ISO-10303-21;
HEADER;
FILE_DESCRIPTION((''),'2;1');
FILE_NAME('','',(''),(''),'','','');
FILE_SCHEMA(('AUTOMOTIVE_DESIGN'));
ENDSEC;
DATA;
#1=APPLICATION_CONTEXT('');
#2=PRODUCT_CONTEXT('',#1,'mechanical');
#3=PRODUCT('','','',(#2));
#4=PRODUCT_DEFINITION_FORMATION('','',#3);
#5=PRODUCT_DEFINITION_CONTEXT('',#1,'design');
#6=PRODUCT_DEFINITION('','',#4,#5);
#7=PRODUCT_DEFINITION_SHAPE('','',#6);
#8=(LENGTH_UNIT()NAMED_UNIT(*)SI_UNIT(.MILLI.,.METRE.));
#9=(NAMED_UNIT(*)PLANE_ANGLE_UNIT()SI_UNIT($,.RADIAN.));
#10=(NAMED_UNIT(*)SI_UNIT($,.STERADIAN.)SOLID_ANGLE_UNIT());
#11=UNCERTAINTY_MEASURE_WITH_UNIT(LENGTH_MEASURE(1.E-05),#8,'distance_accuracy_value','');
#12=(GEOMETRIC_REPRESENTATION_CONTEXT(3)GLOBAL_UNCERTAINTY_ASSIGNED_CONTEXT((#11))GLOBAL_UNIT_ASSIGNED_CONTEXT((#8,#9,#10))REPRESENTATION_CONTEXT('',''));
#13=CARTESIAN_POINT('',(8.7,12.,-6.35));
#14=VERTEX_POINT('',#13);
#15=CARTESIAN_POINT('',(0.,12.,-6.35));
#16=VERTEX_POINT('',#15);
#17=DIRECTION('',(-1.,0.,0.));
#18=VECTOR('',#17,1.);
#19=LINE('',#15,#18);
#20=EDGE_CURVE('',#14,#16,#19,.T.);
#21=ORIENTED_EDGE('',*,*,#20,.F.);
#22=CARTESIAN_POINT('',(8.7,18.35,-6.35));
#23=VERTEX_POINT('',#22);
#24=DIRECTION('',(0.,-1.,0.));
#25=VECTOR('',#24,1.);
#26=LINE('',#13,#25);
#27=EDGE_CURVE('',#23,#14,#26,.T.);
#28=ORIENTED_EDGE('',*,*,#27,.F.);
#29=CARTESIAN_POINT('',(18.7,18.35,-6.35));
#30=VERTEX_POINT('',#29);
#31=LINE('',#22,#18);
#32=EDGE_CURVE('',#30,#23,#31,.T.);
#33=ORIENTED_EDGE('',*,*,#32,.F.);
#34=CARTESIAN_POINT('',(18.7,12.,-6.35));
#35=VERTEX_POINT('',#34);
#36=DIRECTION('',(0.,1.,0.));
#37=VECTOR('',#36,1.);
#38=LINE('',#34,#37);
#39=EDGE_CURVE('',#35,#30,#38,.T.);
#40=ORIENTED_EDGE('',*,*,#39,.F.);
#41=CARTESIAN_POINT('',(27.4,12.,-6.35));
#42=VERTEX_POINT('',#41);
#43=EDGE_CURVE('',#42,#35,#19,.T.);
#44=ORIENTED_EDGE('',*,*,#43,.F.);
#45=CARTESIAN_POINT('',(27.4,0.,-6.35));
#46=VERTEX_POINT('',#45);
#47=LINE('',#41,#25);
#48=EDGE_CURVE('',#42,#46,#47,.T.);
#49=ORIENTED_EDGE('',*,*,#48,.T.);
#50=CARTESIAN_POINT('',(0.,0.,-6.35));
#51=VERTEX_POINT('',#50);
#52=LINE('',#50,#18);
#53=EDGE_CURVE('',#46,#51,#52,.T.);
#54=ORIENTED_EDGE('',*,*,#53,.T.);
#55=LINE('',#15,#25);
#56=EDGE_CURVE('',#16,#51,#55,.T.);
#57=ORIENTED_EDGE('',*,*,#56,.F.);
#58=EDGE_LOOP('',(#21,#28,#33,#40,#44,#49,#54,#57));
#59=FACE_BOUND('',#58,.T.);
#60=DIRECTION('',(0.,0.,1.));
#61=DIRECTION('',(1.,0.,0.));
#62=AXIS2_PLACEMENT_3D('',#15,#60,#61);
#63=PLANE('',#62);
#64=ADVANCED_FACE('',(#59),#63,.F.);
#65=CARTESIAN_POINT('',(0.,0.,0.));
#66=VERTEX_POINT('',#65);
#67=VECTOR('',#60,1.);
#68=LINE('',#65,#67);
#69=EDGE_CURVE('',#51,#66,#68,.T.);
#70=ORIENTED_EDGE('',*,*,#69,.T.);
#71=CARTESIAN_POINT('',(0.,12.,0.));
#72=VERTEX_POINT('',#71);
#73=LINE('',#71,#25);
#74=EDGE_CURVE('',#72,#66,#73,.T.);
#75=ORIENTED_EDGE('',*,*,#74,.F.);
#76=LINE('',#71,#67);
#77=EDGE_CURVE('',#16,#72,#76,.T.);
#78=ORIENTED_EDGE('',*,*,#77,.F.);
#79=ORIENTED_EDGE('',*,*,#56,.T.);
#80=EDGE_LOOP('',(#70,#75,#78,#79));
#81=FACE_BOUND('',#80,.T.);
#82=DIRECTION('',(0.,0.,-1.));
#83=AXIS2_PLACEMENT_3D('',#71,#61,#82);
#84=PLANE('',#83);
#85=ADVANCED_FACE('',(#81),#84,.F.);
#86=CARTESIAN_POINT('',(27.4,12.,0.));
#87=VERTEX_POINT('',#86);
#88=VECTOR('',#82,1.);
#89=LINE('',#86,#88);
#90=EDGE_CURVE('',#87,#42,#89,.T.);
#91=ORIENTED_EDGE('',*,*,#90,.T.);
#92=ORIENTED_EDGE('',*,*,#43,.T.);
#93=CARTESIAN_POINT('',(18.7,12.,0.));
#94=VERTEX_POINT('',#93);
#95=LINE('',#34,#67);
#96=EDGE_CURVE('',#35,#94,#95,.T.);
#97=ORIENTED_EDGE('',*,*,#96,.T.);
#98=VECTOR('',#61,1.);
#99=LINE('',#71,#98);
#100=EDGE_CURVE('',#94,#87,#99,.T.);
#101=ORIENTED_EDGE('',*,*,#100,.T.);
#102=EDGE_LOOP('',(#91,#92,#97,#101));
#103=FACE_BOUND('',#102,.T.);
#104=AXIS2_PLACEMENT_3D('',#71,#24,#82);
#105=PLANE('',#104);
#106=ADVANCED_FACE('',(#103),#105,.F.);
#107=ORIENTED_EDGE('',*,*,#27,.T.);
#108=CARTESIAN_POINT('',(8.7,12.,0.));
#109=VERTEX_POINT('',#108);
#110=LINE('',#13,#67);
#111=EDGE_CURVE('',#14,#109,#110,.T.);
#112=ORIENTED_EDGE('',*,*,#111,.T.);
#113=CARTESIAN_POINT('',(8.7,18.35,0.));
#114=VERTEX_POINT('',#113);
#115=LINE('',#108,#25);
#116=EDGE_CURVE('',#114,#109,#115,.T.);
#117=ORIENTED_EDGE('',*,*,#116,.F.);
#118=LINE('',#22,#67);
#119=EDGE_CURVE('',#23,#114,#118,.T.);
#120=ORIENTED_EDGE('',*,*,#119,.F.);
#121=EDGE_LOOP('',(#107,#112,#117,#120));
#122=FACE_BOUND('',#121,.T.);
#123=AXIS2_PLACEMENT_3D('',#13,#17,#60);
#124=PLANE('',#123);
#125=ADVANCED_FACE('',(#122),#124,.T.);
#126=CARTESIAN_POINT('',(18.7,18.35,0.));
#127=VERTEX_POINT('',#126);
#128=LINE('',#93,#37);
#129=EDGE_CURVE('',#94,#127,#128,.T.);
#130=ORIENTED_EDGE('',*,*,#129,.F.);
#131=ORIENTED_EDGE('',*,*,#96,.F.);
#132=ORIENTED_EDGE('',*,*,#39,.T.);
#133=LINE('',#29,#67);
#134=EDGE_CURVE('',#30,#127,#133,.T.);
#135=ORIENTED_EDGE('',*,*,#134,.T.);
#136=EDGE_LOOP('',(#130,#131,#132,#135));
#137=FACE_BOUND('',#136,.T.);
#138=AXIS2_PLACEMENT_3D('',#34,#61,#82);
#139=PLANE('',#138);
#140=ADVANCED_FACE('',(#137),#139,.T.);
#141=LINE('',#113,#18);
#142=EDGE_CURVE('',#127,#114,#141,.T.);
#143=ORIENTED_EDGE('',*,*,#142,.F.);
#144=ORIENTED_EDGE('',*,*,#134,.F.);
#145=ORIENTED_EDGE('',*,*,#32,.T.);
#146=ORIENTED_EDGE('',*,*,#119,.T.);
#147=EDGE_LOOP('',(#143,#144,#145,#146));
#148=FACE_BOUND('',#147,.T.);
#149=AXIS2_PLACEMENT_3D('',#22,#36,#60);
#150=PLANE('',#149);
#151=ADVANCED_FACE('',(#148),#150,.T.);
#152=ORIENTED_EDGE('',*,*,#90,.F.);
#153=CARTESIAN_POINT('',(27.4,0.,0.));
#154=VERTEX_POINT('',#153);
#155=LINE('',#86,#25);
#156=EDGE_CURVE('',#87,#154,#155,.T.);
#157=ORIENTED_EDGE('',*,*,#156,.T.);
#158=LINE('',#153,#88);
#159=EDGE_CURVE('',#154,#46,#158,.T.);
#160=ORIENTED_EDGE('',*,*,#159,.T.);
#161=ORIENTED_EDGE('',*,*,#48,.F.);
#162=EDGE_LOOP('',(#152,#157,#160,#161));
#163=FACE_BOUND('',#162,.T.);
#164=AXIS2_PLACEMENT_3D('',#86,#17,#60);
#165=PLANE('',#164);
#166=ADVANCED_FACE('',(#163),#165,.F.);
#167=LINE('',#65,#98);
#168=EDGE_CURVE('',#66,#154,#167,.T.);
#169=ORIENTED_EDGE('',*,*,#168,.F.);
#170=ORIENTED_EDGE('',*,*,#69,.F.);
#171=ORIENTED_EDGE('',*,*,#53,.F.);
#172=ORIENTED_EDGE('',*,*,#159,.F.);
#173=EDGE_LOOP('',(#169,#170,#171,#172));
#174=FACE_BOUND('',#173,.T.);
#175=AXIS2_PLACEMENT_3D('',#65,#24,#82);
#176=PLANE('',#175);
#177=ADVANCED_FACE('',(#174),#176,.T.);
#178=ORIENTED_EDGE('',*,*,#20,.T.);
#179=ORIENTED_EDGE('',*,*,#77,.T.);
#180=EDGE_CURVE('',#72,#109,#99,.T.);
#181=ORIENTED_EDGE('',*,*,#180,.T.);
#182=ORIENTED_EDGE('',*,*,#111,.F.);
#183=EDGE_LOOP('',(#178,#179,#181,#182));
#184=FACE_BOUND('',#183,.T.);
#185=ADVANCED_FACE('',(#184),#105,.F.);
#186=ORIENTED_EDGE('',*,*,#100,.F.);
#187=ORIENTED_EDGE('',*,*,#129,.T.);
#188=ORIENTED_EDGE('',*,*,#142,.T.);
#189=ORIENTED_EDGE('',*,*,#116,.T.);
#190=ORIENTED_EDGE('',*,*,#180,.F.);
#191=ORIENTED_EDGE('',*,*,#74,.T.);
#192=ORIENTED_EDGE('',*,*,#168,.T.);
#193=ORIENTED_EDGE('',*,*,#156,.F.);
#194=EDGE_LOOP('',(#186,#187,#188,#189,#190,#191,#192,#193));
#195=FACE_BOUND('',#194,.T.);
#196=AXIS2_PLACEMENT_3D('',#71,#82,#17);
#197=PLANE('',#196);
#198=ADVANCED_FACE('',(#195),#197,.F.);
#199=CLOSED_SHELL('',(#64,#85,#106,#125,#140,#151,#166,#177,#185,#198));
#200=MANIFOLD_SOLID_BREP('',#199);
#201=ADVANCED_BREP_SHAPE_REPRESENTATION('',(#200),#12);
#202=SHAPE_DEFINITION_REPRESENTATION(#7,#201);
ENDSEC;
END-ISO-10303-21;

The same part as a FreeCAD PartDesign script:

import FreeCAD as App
import Part
import Sketcher
from FreeCAD import Vector
Q = App.Units.Quantity


def add_polygon(sketch, points):
    """Adds a closed chain of lines whose ends are joined by coincident constraints."""
    first, n = sketch.GeometryCount, len(points)
    for a, b in zip(points, points[1:] + points[:1]):
        sketch.addGeometry(Part.LineSegment(App.Vector(*a, 0), App.Vector(*b, 0)), False)
    for i in range(n):
        sketch.addConstraint(Sketcher.Constraint("Coincident", first + i, 2, first + (i + 1) % n, 1))

doc = App.newDocument("Part")
params = doc.addObject("Spreadsheet::Sheet", "Params")
for row, (alias, value) in enumerate([
    ("sketch1_width", "27.4 mm"),
    ("sketch1_height", "6.35 mm"),
    ("pad1_length", "12 mm"),
    ("sketch2_width", "10 mm"),
    ("sketch2_height", "6.35 mm"),
    ("pad2_length", "6.35 mm"),
], start=1):
    params.set(f"A{row}", alias)
    params.set(f"B{row}", "=" + value)
    params.setAlias(f"B{row}", alias)

body = doc.addObject("PartDesign::Body", "Body")

sketch1 = doc.addObject("Sketcher::SketchObject", "Sketch")
body.addObject(sketch1)
sketch1.AttachmentSupport = (doc.XZ_Plane, [""])
sketch1.MapMode = "FlatFace"
add_polygon(sketch1, [(0, -6), (0, 0), (27, 0), (27, -6)])
sketch1.addConstraint([
    Sketcher.Constraint("Vertical", 0),
    Sketcher.Constraint("Horizontal", 1),
    Sketcher.Constraint("Vertical", 2),
    Sketcher.Constraint("Horizontal", 3),
    Sketcher.Constraint("Coincident", 0, 2, -1, 1),
    Sketcher.Constraint("DistanceX", 1, 1, 1, 2, Q("27.4 mm")),
    Sketcher.Constraint("DistanceY", 0, 1, 0, 2, Q("6.35 mm")),
])
sketch1.setExpression("Constraints[9]", "Params.sketch1_width")
sketch1.setExpression("Constraints[10]", "Params.sketch1_height")
pad1 = doc.addObject("PartDesign::Pad", "Pad")
body.addObject(pad1)
pad1.Profile = sketch1
pad1.setExpression("Length", "Params.pad1_length")
pad1.Reversed = True

sketch2 = doc.addObject("Sketcher::SketchObject", "Sketch001")
body.addObject(sketch2)
sketch2.AttachmentSupport = (doc.XY_Plane, [""])
sketch2.MapMode = "FlatFace"
add_polygon(sketch2, [(9, 18), (9, 12), (19, 12), (19, 18)])
sketch2.addConstraint([
    Sketcher.Constraint("Vertical", 0),
    Sketcher.Constraint("Horizontal", 1),
    Sketcher.Constraint("Vertical", 2),
    Sketcher.Constraint("Horizontal", 3),
    Sketcher.Constraint("DistanceX", 1, 1, 1, 2, Q("10 mm")),
    Sketcher.Constraint("DistanceY", -1, 1, 0, 2, Q("12 mm")),
    Sketcher.Constraint("DistanceY", 0, 2, 0, 1, Q("6.35 mm")),
    Sketcher.Constraint("DistanceX", -1, 1, 0, 2, Q("8.7 mm")),
])
sketch2.setExpression("Constraints[8]", "Params.sketch2_width")
sketch2.setExpression("Constraints[10]", "Params.sketch2_height")
pad2 = doc.addObject("PartDesign::Pad", "Pad001")
body.addObject(pad2)
pad2.Profile = sketch2
pad2.setExpression("Length", "Params.pad2_length")
pad2.Reversed = True

doc.recompute()
